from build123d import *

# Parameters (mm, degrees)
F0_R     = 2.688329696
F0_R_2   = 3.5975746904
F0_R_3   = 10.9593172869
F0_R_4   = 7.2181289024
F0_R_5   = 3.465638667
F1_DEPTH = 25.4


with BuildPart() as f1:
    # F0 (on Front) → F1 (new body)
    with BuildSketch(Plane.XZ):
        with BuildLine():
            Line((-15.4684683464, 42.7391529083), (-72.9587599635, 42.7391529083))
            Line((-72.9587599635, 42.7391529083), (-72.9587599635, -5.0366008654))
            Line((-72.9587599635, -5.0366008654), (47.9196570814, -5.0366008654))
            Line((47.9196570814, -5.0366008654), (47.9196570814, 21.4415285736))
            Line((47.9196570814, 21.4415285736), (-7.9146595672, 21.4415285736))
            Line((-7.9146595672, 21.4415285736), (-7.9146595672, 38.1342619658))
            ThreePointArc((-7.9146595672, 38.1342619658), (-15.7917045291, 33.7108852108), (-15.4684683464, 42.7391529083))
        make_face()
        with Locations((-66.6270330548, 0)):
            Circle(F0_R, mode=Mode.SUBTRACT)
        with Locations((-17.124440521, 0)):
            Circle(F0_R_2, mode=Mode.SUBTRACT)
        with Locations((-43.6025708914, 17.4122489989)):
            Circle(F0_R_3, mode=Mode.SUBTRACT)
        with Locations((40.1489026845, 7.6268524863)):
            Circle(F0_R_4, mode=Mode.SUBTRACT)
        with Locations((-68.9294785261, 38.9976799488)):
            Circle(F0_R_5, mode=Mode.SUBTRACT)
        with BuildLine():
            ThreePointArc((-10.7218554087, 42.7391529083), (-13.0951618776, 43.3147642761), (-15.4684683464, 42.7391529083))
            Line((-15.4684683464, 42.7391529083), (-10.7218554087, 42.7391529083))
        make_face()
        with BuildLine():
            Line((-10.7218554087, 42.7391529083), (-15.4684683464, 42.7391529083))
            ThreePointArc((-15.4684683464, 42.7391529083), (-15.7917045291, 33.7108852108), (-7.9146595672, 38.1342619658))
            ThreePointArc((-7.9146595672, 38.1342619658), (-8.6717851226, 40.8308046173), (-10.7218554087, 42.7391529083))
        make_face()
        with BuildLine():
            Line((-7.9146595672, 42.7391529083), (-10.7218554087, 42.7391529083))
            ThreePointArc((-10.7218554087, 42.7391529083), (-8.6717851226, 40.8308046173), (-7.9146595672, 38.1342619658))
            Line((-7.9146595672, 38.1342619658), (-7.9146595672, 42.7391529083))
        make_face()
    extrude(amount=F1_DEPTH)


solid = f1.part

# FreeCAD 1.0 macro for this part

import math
import FreeCAD as App
import Part
import Sketcher

V = App.Vector
Q = App.Units.Quantity

doc = App.newDocument("Part")
body = doc.addObject("PartDesign::Body", "Body")

# Sketch on XZ plane
sketch1 = body.newObject("Sketcher::SketchObject", "Sketch")
sketch1.AttachmentSupport = (doc.getObject("XZ_Plane"), [""])
sketch1.MapMode = "FlatFace"
sketch1.addGeometry([
    Part.LineSegment(V(-15.5, 42.7, 0), V(-73, 42.7, 0)),  # 0
    Part.LineSegment(V(-73, 42.7, 0), V(-73, -5, 0)),  # 1
    Part.LineSegment(V(-73, -5, 0), V(47.9, -5, 0)),  # 2
    Part.LineSegment(V(47.9, -5, 0), V(47.9, 21.4, 0)),  # 3
    Part.LineSegment(V(47.9, 21.4, 0), V(-7.9, 21.4, 0)),  # 4
    Part.LineSegment(V(-7.9, 21.4, 0), V(-7.9, 42.7, 0)),  # 5
    Part.LineSegment(V(-7.9, 42.7, 0), V(-10.7, 42.7, 0)),  # 6
    Part.ArcOfCircle(Part.Circle(V(-13.1, 38.1, 0), V(0, 0, 1), 5.2), math.radians(63), math.radians(117)),  # 7
    Part.Circle(V(-66.6, 0, 0), V(0, 0, 1), 2.7),  # 8
    Part.Circle(V(-17.1, 0, 0), V(0, 0, 1), 3.6),  # 9
    Part.Circle(V(-43.6, 17.4, 0), V(0, 0, 1), 11),  # 10
    Part.Circle(V(40.1, 7.6, 0), V(0, 0, 1), 7.2),  # 11
    Part.Circle(V(-68.9, 39, 0), V(0, 0, 1), 3.5),  # 12
], False)
sketch1.addConstraint([
    Sketcher.Constraint("Coincident", 0, 2, 1, 1),
    Sketcher.Constraint("Coincident", 1, 2, 2, 1),
    Sketcher.Constraint("Coincident", 2, 2, 3, 1),
    Sketcher.Constraint("Coincident", 3, 2, 4, 1),
    Sketcher.Constraint("Coincident", 4, 2, 5, 1),
    Sketcher.Constraint("Coincident", 5, 2, 6, 1),
    Sketcher.Constraint("Coincident", 6, 2, 7, 1),
    Sketcher.Constraint("Coincident", 7, 2, 0, 1),
    Sketcher.Constraint("Horizontal", 0),
    Sketcher.Constraint("Vertical", 1),
    Sketcher.Constraint("Horizontal", 2),
    Sketcher.Constraint("Vertical", 3),
    Sketcher.Constraint("Horizontal", 4),
    Sketcher.Constraint("Vertical", 5),
    Sketcher.Constraint("Horizontal", 6),
    Sketcher.Constraint("PointOnObject", 8, 3, -1),
    Sketcher.Constraint("PointOnObject", 9, 3, -1),
    Sketcher.Constraint("Horizontal", 0, 2, 5, 2),
    Sketcher.Constraint("Diameter", 8, 5.376659),
    Sketcher.Constraint("Diameter", 9, 7.195149),
    Sketcher.Constraint("Diameter", 10, 21.918635),
    Sketcher.Constraint("Diameter", 11, 14.436258),
    Sketcher.Constraint("Diameter", 12, 6.931277),
    Sketcher.Constraint("Radius", 7, 5.180502),
    Sketcher.Constraint("DistanceX", 0, 2, 0, 1, 57.490292),
    Sketcher.Constraint("DistanceY", 3, 1, 3, 2, 26.478129),
    Sketcher.Constraint("DistanceY", 1, 2, -1, 1, 5.036601),
    Sketcher.Constraint("DistanceX", 0, 2, 7, 3, 59.863598),
    Sketcher.Constraint("DistanceY", 11, 3, 5, 2, 35.1123),
    Sketcher.Constraint("DistanceX", 2, 1, 2, 2, 120.878417),
    Sketcher.Constraint("DistanceX", 4, 2, 4, 1, 55.834317),
    Sketcher.Constraint("DistanceY", 1, 2, 1, 1, 47.775754),
    Sketcher.Constraint("DistanceX", 7, 3, -1, 1, 13.095162),
    Sketcher.Constraint("DistanceX", 9, 3, -1, 1, 17.124441),
    Sketcher.Constraint("DistanceX", 10, 3, -1, 1, 43.602571),
    Sketcher.Constraint("DistanceY", -1, 1, 10, 3, 17.412249),
    Sketcher.Constraint("DistanceX", 12, 3, -1, 1, 68.929479),
    Sketcher.Constraint("DistanceY", -1, 1, 12, 3, 38.99768),
    Sketcher.Constraint("DistanceX", 8, 3, 7, 3, 53.531871),
    Sketcher.Constraint("DistanceX", 12, 3, 11, 3, 109.078381),
])
pad1 = body.newObject("PartDesign::Pad", "Pad")
pad1.Profile = sketch1
pad1.Length = Q("1 in")

doc.recompute()
